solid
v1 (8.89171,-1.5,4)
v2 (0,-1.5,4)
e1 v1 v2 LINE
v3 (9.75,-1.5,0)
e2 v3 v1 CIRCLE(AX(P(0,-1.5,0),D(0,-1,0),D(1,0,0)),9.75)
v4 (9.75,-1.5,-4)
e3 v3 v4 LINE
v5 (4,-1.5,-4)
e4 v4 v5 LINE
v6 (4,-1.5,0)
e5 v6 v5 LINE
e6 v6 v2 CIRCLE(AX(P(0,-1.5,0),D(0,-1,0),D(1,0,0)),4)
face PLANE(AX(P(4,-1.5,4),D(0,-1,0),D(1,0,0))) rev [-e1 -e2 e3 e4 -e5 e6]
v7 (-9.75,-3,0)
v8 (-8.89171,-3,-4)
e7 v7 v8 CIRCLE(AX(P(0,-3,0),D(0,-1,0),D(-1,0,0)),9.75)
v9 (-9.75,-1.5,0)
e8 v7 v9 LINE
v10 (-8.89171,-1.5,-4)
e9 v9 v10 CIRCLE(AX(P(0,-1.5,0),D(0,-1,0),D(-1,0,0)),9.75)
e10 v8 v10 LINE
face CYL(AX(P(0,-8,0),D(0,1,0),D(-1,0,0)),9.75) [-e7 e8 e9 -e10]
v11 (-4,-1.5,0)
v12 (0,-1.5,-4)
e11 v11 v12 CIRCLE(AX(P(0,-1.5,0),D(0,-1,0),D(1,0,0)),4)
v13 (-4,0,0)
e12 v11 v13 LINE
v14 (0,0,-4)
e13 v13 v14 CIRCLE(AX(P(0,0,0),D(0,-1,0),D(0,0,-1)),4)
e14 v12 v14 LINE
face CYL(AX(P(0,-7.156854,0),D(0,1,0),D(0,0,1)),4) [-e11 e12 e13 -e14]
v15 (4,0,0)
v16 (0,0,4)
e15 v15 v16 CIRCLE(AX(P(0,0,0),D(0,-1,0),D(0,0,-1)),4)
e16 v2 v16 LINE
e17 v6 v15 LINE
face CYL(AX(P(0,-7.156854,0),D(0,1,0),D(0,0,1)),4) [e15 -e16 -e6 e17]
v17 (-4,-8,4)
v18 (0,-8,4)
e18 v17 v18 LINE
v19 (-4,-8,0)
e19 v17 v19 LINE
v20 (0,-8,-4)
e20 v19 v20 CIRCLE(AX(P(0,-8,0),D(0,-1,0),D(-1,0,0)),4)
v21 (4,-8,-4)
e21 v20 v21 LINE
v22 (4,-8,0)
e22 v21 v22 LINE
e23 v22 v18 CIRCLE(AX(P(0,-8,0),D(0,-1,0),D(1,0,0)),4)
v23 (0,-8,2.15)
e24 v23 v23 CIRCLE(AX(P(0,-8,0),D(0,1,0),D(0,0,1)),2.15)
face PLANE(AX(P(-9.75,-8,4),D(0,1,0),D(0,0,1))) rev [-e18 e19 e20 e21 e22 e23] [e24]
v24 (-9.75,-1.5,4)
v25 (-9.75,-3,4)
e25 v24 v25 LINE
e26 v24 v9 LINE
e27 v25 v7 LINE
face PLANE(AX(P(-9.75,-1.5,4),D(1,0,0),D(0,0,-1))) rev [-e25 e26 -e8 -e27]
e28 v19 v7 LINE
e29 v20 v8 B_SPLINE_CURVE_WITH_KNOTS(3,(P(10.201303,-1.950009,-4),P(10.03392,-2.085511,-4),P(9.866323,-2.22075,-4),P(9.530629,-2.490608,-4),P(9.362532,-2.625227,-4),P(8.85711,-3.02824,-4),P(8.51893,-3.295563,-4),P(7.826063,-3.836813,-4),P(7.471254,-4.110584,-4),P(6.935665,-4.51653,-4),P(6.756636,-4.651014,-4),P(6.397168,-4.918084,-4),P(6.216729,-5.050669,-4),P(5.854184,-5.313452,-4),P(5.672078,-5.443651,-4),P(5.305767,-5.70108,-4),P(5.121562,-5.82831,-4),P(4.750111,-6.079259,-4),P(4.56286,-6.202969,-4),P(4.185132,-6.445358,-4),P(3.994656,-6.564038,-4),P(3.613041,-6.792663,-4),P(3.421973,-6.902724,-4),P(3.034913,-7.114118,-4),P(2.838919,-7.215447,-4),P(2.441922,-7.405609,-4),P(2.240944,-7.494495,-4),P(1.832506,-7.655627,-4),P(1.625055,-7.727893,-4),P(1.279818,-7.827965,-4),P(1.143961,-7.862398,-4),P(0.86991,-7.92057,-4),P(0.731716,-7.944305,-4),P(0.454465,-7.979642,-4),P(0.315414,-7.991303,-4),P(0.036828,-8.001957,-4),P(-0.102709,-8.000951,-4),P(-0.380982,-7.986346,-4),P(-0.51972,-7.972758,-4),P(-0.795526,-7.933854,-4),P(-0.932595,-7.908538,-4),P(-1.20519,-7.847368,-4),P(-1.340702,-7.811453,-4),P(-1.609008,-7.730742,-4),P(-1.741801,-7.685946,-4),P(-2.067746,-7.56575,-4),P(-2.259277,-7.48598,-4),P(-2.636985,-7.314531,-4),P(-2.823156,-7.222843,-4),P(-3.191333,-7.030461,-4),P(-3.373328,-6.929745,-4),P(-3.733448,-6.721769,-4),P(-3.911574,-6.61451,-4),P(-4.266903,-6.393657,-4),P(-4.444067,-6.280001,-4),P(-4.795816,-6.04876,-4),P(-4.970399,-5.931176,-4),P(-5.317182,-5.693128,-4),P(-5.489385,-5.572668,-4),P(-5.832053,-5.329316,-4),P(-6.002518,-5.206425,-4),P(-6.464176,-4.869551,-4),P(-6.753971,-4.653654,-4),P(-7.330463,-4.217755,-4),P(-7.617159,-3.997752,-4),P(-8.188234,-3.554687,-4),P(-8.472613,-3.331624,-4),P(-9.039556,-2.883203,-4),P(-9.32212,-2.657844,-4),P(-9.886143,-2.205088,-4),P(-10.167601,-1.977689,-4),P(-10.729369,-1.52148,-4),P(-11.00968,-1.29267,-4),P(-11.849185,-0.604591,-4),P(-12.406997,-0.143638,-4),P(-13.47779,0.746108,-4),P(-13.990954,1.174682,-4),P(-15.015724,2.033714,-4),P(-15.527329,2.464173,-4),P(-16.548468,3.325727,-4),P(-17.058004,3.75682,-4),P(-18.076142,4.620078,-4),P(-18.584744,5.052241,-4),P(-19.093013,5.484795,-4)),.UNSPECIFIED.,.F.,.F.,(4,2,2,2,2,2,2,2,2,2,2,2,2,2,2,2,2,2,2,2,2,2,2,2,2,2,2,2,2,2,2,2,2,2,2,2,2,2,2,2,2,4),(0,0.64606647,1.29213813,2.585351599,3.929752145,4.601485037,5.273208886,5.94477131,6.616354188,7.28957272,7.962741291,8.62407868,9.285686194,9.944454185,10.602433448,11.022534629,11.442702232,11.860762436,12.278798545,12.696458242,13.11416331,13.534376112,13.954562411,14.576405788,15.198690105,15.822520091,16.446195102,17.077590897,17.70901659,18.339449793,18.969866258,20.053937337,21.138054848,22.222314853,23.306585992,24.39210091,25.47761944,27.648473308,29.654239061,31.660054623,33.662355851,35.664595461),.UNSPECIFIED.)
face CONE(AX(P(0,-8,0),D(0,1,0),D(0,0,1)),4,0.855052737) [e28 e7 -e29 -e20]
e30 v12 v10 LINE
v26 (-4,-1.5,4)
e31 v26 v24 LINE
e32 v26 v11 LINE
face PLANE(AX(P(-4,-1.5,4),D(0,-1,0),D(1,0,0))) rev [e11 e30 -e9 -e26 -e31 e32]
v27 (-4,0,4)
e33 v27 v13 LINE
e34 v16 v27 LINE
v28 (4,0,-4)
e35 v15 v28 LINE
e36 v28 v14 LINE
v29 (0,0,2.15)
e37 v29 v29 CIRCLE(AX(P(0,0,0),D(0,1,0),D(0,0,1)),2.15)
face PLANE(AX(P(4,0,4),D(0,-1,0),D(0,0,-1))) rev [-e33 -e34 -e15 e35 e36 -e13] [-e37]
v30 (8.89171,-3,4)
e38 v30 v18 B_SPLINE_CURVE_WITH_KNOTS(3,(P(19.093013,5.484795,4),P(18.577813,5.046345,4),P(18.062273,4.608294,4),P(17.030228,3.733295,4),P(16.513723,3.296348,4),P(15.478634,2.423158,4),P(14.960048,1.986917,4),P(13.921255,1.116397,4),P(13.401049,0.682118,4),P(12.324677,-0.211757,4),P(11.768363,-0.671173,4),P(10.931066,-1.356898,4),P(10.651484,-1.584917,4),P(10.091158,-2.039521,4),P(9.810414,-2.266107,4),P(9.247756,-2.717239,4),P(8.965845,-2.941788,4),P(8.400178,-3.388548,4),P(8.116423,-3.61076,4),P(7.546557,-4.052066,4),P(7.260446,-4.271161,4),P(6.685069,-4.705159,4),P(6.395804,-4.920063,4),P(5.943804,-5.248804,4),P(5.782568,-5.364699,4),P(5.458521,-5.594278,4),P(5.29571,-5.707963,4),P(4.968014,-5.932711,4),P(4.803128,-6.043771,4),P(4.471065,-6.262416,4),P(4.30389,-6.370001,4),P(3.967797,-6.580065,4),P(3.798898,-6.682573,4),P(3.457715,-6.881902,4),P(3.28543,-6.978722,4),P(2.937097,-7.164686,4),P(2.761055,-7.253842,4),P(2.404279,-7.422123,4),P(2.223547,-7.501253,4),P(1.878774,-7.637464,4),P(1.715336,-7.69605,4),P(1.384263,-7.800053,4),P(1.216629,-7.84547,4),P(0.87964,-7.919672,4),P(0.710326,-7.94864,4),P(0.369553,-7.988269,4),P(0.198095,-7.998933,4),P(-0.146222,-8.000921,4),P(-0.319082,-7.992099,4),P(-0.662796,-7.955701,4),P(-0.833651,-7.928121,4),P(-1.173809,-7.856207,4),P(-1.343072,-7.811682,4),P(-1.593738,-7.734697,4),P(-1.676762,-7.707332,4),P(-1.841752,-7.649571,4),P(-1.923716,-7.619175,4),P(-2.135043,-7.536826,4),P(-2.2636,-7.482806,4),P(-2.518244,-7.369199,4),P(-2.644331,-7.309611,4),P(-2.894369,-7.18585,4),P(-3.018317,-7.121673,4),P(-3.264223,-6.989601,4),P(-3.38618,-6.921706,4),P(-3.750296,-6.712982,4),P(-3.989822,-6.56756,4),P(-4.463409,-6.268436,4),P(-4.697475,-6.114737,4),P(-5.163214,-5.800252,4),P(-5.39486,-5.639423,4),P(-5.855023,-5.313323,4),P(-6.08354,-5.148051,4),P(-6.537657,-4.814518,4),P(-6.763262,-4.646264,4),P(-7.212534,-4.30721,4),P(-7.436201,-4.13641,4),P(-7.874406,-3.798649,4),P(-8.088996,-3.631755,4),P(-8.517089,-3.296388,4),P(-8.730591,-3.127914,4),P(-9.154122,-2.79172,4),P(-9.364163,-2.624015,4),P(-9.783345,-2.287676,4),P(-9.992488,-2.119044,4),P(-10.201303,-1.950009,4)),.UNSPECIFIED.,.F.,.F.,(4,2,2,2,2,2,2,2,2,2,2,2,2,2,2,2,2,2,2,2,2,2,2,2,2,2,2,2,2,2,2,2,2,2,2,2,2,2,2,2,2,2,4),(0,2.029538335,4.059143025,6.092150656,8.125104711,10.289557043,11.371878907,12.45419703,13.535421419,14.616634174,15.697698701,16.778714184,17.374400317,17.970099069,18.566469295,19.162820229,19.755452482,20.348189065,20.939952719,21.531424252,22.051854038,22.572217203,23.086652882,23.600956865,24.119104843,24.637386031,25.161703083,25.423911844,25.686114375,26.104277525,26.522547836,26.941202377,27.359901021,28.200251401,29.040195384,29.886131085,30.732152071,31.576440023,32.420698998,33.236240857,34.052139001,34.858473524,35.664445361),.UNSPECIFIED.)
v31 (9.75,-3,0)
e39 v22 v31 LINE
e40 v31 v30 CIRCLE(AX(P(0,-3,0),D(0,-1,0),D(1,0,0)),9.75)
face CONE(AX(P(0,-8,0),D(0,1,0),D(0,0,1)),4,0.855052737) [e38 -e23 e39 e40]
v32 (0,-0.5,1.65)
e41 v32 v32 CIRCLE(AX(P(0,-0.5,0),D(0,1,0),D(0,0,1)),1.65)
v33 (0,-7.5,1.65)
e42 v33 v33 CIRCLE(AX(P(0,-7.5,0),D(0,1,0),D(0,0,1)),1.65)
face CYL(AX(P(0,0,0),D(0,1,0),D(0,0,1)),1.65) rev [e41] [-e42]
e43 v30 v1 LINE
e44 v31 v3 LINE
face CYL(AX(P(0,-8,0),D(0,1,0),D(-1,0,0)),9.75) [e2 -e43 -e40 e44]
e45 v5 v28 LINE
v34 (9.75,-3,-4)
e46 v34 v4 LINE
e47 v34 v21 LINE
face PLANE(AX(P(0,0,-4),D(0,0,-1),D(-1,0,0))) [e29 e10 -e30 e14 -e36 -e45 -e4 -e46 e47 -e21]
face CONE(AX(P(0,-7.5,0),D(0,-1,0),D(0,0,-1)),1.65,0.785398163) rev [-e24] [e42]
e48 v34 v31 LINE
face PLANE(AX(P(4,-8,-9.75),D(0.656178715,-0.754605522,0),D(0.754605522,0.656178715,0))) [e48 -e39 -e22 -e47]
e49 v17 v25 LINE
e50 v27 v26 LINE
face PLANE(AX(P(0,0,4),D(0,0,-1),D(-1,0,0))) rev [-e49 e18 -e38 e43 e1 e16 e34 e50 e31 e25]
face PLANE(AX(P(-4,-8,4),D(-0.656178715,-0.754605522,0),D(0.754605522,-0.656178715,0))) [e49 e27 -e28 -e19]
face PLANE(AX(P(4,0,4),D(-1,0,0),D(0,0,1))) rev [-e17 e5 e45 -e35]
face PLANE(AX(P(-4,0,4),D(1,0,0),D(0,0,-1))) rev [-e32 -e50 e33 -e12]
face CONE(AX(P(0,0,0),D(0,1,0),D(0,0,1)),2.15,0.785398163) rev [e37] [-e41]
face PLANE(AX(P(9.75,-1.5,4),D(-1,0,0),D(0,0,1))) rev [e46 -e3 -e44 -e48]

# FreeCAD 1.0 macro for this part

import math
import FreeCAD as App
import Part
import Sketcher

V = App.Vector


def add_polygon(sketch, points):
    """Adds a closed chain of lines whose ends are joined by coincident constraints."""
    first, n = sketch.GeometryCount, len(points)
    for a, b in zip(points, points[1:] + points[:1]):
        sketch.addGeometry(Part.LineSegment(App.Vector(*a, 0), App.Vector(*b, 0)), False)
    for i in range(n):
        sketch.addConstraint(Sketcher.Constraint("Coincident", first + i, 2, first + (i + 1) % n, 1))

doc = App.newDocument("Part")
body = doc.addObject("PartDesign::Body", "Body")

# Sketch on XY plane
sketch1 = doc.addObject("Sketcher::SketchObject", "Sketch")
body.addObject(sketch1)
sketch1.AttachmentSupport = (doc.XY_Plane, [""])
sketch1.MapMode = "FlatFace"
add_polygon(sketch1, [(4, 0), (-4, 0), (-4, -1.5), (-9.75, -1.5), (-9.75, -8), (9.75, -8), (9.75, -1.5), (4, -1.5)])  # lines 0-7
sketch1.addConstraint([
    Sketcher.Constraint("Horizontal", 0),
    Sketcher.Constraint("Vertical", 1),
    Sketcher.Constraint("Horizontal", 2),
    Sketcher.Constraint("Vertical", 3),
    Sketcher.Constraint("Horizontal", 4),
    Sketcher.Constraint("Vertical", 5),
    Sketcher.Constraint("Horizontal", 6),
    Sketcher.Constraint("Vertical", 7),
    Sketcher.Constraint("Symmetric", 0, 2, 7, 2, -1, 1),
    Sketcher.Constraint("Symmetric", 2, 2, 5, 2, -2),
    Sketcher.Constraint("DistanceX", 0, 2, 0, 1, 8.0),
    Sketcher.Constraint("DistanceX", 4, 1, 4, 2, 19.5),
    Sketcher.Constraint("DistanceY", 1, 2, 1, 1, 1.5),
    Sketcher.Constraint("DistanceY", 3, 2, 3, 1, 6.5),
])
pad1 = doc.addObject("PartDesign::Pad", "Pad")
body.addObject(pad1)
pad1.Profile = sketch1
pad1.Length = 8
pad1.Midplane = True

# Sketch on YZ plane
sketch2 = doc.addObject("Sketcher::SketchObject", "Sketch001")
body.addObject(sketch2)
sketch2.AttachmentSupport = (doc.YZ_Plane, [""])
sketch2.MapMode = "FlatFace"
add_polygon(sketch2, [(-8, 0), (0, 0), (0, 2.15), (-0.5, 1.65), (-7.5, 1.65), (-8, 2.15)])  # lines 0-5
sketch2.addConstraint([
    Sketcher.Constraint("Horizontal", 0),
    Sketcher.Constraint("Vertical", 1),
    Sketcher.Constraint("Horizontal", 3),
    Sketcher.Constraint("Vertical", 5),
    Sketcher.Constraint("Coincident", 0, 2, -1, 1),
    Sketcher.Constraint("Perpendicular", 2, 4),
    Sketcher.Constraint("Horizontal", 1, 2, 4, 2),
    Sketcher.Constraint("Equal", 2, 4),
    Sketcher.Constraint("DistanceX", 0, 1, 0, 2, 8.0),
    Sketcher.Constraint("DistanceX", 3, 2, 3, 1, 7.0),
    Sketcher.Constraint("DistanceY", 1, 1, 1, 2, 2.15),
])
groove = doc.addObject("PartDesign::Groove", "Groove")
body.addObject(groove)
groove.Profile = sketch2
groove.ReferenceAxis = (sketch2, ["H_Axis"])
groove.Angle = 360

# Sketch on XZ plane
sketch3 = doc.addObject("Sketcher::SketchObject", "Sketch002")
body.addObject(sketch3)
sketch3.AttachmentSupport = (doc.XZ_Plane, [""])
sketch3.MapMode = "FlatFace"
sketch3.addGeometry([
    Part.LineSegment(V(-4, -4, 0), V(-4, 0, 0)),  # 0
    Part.ArcOfCircle(Part.Circle(V(0, 0, 0), V(0, 0, 1), 4), math.radians(180), math.radians(270)),  # 1
    Part.LineSegment(V(0, -4, 0), V(-4, -4, 0)),  # 2
    Part.LineSegment(V(0, 4, 0), V(4, 4, 0)),  # 3
    Part.LineSegment(V(4, 4, 0), V(4, 0, 0)),  # 4
    Part.ArcOfCircle(Part.Circle(V(0, 0, 0), V(0, 0, 1), 4), math.radians(0), math.radians(90)),  # 5
], False)
sketch3.addConstraint([
    Sketcher.Constraint("Tangent", 0, 2, 1, 1),
    Sketcher.Constraint("Tangent", 1, 2, 2, 1),
    Sketcher.Constraint("Coincident", 2, 2, 0, 1),
    Sketcher.Constraint("Coincident", 3, 2, 4, 1),
    Sketcher.Constraint("Tangent", 4, 2, 5, 1),
    Sketcher.Constraint("Tangent", 5, 2, 3, 1),
    Sketcher.Constraint("Vertical", 0),
    Sketcher.Constraint("Horizontal", 2),
    Sketcher.Constraint("Horizontal", 3),
    Sketcher.Constraint("Vertical", 4),
    Sketcher.Constraint("Coincident", 1, 3, -1, 1),
    Sketcher.Constraint("Coincident", 5, 3, -1, 1),
    Sketcher.Constraint("Equal", 1, 5),
    Sketcher.Constraint("Radius", 1, 4.0),
])
pocket1 = doc.addObject("PartDesign::Pocket", "Pocket")
body.addObject(pocket1)
pocket1.Profile = sketch3
pocket1.Length = 1.5
pocket1.Reversed = True

# Sketch on XZ plane
sketch4 = doc.addObject("Sketcher::SketchObject", "Sketch003")
body.addObject(sketch4)
sketch4.AttachmentSupport = (doc.XZ_Plane, [""])
sketch4.MapMode = "FlatFace"
sketch4.AttachmentOffset = App.Placement(V(0, 0, 1.5), App.Rotation())
sketch4.addGeometry([
    Part.LineSegment(V(-9.75, -4, 0), V(-9.75, 0, 0)),  # 0
    Part.ArcOfCircle(Part.Circle(V(0, 0, 0), V(0, 0, 1), 9.75), math.radians(-180), math.radians(-155.779057)),  # 1
    Part.LineSegment(V(-8.89171, -4, 0), V(-9.75, -4, 0)),  # 2
    Part.LineSegment(V(9.75, 4, 0), V(9.75, 0, 0)),  # 3
    Part.ArcOfCircle(Part.Circle(V(0, 0, 0), V(0, 0, 1), 9.75), math.radians(0), math.radians(24.220943)),  # 4
    Part.LineSegment(V(8.89171, 4, 0), V(9.75, 4, 0)),  # 5
], False)
sketch4.addConstraint([
    Sketcher.Constraint("Tangent", 0, 2, 1, 1),
    Sketcher.Constraint("Coincident", 1, 2, 2, 1),
    Sketcher.Constraint("Coincident", 2, 2, 0, 1),
    Sketcher.Constraint("Tangent", 3, 2, 4, 1),
    Sketcher.Constraint("Coincident", 4, 2, 5, 1),
    Sketcher.Constraint("Coincident", 5, 2, 3, 1),
    Sketcher.Constraint("Vertical", 0),
    Sketcher.Constraint("Horizontal", 2),
    Sketcher.Constraint("Vertical", 3),
    Sketcher.Constraint("Horizontal", 5),
    Sketcher.Constraint("Coincident", 1, 3, -1, 1),
    Sketcher.Constraint("Coincident", 4, 3, -1, 1),
    Sketcher.Constraint("Equal", 1, 4),
    Sketcher.Constraint("Equal", 2, 5),
    Sketcher.Constraint("DistanceY", 0, 1, 0, 2, 4.0),
    Sketcher.Constraint("Radius", 1, 9.75),
])
pocket2 = doc.addObject("PartDesign::Pocket", "Pocket001")
body.addObject(pocket2)
pocket2.Profile = sketch4
pocket2.Type = "ThroughAll"
pocket2.Reversed = True

# Sketch on XY plane
sketch5 = doc.addObject("Sketcher::SketchObject", "Sketch004")
body.addObject(sketch5)
sketch5.AttachmentSupport = (doc.XY_Plane, [""])
sketch5.MapMode = "FlatFace"
sketch5.AttachmentOffset = App.Placement(V(0, 0, 4), App.Rotation())
add_polygon(sketch5, [(-9.75, -3), (-9.75, -8), (-4, -8)])  # lines 0-2
sketch5.addConstraint([
    Sketcher.Constraint("Vertical", 0),
    Sketcher.Constraint("Horizontal", 1),
    Sketcher.Constraint("DistanceY", 0, 2, 0, 1, 5.0),
    Sketcher.Constraint("DistanceY", 0, 2, -1, 1, 8.0),
    Sketcher.Constraint("DistanceX", 1, 2, -1, 1, 4.0),
    Sketcher.Constraint("DistanceX", 1, 1, 1, 2, 5.75),
])

# Sketch on XZ plane
sketch6 = doc.addObject("Sketcher::SketchObject", "Sketch005")
body.addObject(sketch6)
sketch6.AttachmentSupport = (doc.XZ_Plane, [""])
sketch6.MapMode = "FlatFace"
sketch6.AttachmentOffset = App.Placement(V(0, 0, 8), App.Rotation())
sketch6.addGeometry([
    Part.LineSegment(V(0, 9.75, 0), V(-9.75, 9.75, 0)),  # 0
    Part.LineSegment(V(-9.75, 9.75, 0), V(-9.75, 0, 0)),  # 1
    Part.ArcOfCircle(Part.Circle(V(0, 0, 0), V(0, 0, 1), 9.75), math.radians(180), math.radians(270)),  # 2
    Part.LineSegment(V(0, -9.75, 0), V(9.75, -9.75, 0)),  # 3
    Part.LineSegment(V(9.75, -9.75, 0), V(9.75, 0, 0)),  # 4
    Part.ArcOfCircle(Part.Circle(V(0, 0, 0), V(0, 0, 1), 9.75), math.radians(0), math.radians(90)),  # 5
], False)
sketch6.addConstraint([
    Sketcher.Constraint("Coincident", 0, 2, 1, 1),
    Sketcher.Constraint("Tangent", 1, 2, 2, 1),
    Sketcher.Constraint("Tangent", 2, 2, 3, 1),
    Sketcher.Constraint("Coincident", 3, 2, 4, 1),
    Sketcher.Constraint("Tangent", 4, 2, 5, 1),
    Sketcher.Constraint("Tangent", 5, 2, 0, 1),
    Sketcher.Constraint("Horizontal", 0),
    Sketcher.Constraint("Vertical", 1),
    Sketcher.Constraint("Horizontal", 3),
    Sketcher.Constraint("Vertical", 4),
    Sketcher.Constraint("Coincident", 2, 3, -1, 1),
    Sketcher.Constraint("Coincident", 5, 3, -1, 1),
    Sketcher.Constraint("Equal", 2, 5),
    Sketcher.Constraint("Radius", 2, 9.75),
])
doc.recompute()

subtractivepipe = doc.addObject("PartDesign::SubtractivePipe", "SubtractivePipe")
body.addObject(subtractivepipe)
subtractivepipe.Profile = sketch5
subtractivepipe.Spine = (sketch6, ["Edge1", "Edge2", "Edge3", "Edge4", "Edge5", "Edge6"])
subtractivepipe.Transition = "Right corner"

doc.recompute()
